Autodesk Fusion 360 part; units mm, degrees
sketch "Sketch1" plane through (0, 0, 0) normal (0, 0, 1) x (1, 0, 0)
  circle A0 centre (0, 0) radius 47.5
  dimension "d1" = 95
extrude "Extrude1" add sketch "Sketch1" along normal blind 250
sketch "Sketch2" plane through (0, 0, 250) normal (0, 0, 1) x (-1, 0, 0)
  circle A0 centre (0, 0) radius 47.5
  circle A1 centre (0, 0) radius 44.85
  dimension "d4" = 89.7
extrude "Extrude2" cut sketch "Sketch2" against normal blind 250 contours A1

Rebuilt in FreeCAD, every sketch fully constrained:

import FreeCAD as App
import Part
import Sketcher

doc = App.newDocument("Part")
body = doc.addObject("PartDesign::Body", "Body")

# Sketch on XY plane
sketch1 = body.newObject("Sketcher::SketchObject", "Sketch")
sketch1.AttachmentSupport = (doc.getObject("XY_Plane"), [""])
sketch1.MapMode = "FlatFace"
sketch1.addGeometry(Part.Circle(App.Vector(0, 0, 0), App.Vector(0, 0, 1), 48), False)
sketch1.addConstraint(Sketcher.Constraint("Coincident", 0, 3, -1, 1))
sketch1.addConstraint(Sketcher.Constraint("Diameter", 0, 95.0))
pad1 = body.newObject("PartDesign::Pad", "Pad")
pad1.Profile = sketch1
pad1.Length = 250

# Sketch on XY plane
sketch2 = body.newObject("Sketcher::SketchObject", "Sketch001")
sketch2.AttachmentSupport = (doc.getObject("XY_Plane"), [""])
sketch2.MapMode = "FlatFace"
sketch2.AttachmentOffset = App.Placement(App.Vector(0, 0, 250), App.Rotation())
sketch2.addGeometry(Part.Circle(App.Vector(0, 0, 0), App.Vector(0, 0, 1), 45), False)
sketch2.addConstraint(Sketcher.Constraint("Coincident", 0, 3, -1, 1))
sketch2.addConstraint(Sketcher.Constraint("Diameter", 0, 89.7))
pocket1 = body.newObject("PartDesign::Pocket", "Pocket")
pocket1.Profile = sketch2
pocket1.Length = 250

doc.recompute()
